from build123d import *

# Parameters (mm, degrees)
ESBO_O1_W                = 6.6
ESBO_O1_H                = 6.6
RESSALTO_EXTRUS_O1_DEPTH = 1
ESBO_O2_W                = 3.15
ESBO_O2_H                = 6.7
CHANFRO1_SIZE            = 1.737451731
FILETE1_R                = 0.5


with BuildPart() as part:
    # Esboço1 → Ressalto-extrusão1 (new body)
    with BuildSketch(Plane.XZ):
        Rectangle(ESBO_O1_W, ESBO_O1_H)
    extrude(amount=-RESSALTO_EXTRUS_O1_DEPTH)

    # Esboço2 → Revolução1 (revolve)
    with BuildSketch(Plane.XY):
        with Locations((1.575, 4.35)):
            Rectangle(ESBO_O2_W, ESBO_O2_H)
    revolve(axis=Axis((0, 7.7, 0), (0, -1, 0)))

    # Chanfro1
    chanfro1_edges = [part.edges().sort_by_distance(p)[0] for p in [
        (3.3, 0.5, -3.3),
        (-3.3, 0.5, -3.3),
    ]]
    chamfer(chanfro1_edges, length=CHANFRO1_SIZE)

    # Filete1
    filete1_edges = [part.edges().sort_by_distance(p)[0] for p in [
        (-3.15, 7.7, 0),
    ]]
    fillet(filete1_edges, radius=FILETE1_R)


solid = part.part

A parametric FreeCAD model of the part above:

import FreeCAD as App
import Part
import Sketcher
Q = App.Units.Quantity


def edges_at(feature, points):
    """Names of the edges that pass closest to the given points."""
    edges = feature.Shape.Edges
    near = lambda p: min(range(len(edges)), key=lambda i: edges[i].distToShape(Part.Vertex(*p))[0])
    return sorted({f"Edge{near(p) + 1}" for p in points})


def add_polygon(sketch, points):
    """Adds a closed chain of lines whose ends are joined by coincident constraints."""
    first, n = sketch.GeometryCount, len(points)
    for a, b in zip(points, points[1:] + points[:1]):
        sketch.addGeometry(Part.LineSegment(App.Vector(*a, 0), App.Vector(*b, 0)), False)
    for i in range(n):
        sketch.addConstraint(Sketcher.Constraint("Coincident", first + i, 2, first + (i + 1) % n, 1))

doc = App.newDocument("Part")
body = doc.addObject("PartDesign::Body", "Body")

# Sketch on XZ plane
sketch1 = body.newObject("Sketcher::SketchObject", "Sketch")
sketch1.AttachmentSupport = (doc.getObject("XZ_Plane"), [""])
sketch1.MapMode = "FlatFace"
add_polygon(sketch1, [(-3.3, 3.3), (-3.3, -3.3), (3.3, -3.3), (3.3, 3.3)])  # lines 0-3
sketch1.addConstraint([
    Sketcher.Constraint("Vertical", 0),
    Sketcher.Constraint("Horizontal", 1),
    Sketcher.Constraint("Vertical", 2),
    Sketcher.Constraint("Horizontal", 3),
    Sketcher.Constraint("Symmetric", 0, 2, 2, 2, -1, 1),
    Sketcher.Constraint("Equal", 3, 0),
    Sketcher.Constraint("DistanceX", 1, 1, 1, 2, Q("6.6 mm")),
])
pad1 = body.newObject("PartDesign::Pad", "Pad")
pad1.Profile = sketch1
pad1.Length = 1
pad1.Reversed = True

# Sketch on XY plane
sketch2 = body.newObject("Sketcher::SketchObject", "Sketch001")
sketch2.AttachmentSupport = (doc.getObject("XY_Plane"), [""])
sketch2.MapMode = "FlatFace"
add_polygon(sketch2, [(0, 7.7), (0, 1), (3.15, 1), (3.15, 7.7)])  # lines 0-3
sketch2.addConstraint([
    Sketcher.Constraint("Vertical", 0),
    Sketcher.Constraint("Horizontal", 1),
    Sketcher.Constraint("Vertical", 2),
    Sketcher.Constraint("Horizontal", 3),
    Sketcher.Constraint("PointOnObject", 0, 2, -2),
    Sketcher.Constraint("DistanceY", 0, 2, 0, 1, Q("6.7 mm")),
    Sketcher.Constraint("DistanceY", -1, 1, 0, 2, Q("1 mm")),
    Sketcher.Constraint("DistanceX", 1, 1, 1, 2, Q("3.15 mm")),
])
revolution = body.newObject("PartDesign::Revolution", "Revolution")
revolution.Profile = sketch2
revolution.ReferenceAxis = (sketch2, ["V_Axis"])
revolution.Angle = 360
doc.recompute()

chamfer = body.newObject("PartDesign::Chamfer", "Chamfer")
chamfer.Base = (revolution, edges_at(revolution, [(3.3, 0.5, -3.3), (-3.3, 0.5, -3.3)]))
chamfer.Size = 1.737452
doc.recompute()

fillet = body.newObject("PartDesign::Fillet", "Fillet")
fillet.Base = (chamfer, edges_at(chamfer, [(-3.15, 7.7, 0)]))
fillet.Radius = 0.5

doc.recompute()
